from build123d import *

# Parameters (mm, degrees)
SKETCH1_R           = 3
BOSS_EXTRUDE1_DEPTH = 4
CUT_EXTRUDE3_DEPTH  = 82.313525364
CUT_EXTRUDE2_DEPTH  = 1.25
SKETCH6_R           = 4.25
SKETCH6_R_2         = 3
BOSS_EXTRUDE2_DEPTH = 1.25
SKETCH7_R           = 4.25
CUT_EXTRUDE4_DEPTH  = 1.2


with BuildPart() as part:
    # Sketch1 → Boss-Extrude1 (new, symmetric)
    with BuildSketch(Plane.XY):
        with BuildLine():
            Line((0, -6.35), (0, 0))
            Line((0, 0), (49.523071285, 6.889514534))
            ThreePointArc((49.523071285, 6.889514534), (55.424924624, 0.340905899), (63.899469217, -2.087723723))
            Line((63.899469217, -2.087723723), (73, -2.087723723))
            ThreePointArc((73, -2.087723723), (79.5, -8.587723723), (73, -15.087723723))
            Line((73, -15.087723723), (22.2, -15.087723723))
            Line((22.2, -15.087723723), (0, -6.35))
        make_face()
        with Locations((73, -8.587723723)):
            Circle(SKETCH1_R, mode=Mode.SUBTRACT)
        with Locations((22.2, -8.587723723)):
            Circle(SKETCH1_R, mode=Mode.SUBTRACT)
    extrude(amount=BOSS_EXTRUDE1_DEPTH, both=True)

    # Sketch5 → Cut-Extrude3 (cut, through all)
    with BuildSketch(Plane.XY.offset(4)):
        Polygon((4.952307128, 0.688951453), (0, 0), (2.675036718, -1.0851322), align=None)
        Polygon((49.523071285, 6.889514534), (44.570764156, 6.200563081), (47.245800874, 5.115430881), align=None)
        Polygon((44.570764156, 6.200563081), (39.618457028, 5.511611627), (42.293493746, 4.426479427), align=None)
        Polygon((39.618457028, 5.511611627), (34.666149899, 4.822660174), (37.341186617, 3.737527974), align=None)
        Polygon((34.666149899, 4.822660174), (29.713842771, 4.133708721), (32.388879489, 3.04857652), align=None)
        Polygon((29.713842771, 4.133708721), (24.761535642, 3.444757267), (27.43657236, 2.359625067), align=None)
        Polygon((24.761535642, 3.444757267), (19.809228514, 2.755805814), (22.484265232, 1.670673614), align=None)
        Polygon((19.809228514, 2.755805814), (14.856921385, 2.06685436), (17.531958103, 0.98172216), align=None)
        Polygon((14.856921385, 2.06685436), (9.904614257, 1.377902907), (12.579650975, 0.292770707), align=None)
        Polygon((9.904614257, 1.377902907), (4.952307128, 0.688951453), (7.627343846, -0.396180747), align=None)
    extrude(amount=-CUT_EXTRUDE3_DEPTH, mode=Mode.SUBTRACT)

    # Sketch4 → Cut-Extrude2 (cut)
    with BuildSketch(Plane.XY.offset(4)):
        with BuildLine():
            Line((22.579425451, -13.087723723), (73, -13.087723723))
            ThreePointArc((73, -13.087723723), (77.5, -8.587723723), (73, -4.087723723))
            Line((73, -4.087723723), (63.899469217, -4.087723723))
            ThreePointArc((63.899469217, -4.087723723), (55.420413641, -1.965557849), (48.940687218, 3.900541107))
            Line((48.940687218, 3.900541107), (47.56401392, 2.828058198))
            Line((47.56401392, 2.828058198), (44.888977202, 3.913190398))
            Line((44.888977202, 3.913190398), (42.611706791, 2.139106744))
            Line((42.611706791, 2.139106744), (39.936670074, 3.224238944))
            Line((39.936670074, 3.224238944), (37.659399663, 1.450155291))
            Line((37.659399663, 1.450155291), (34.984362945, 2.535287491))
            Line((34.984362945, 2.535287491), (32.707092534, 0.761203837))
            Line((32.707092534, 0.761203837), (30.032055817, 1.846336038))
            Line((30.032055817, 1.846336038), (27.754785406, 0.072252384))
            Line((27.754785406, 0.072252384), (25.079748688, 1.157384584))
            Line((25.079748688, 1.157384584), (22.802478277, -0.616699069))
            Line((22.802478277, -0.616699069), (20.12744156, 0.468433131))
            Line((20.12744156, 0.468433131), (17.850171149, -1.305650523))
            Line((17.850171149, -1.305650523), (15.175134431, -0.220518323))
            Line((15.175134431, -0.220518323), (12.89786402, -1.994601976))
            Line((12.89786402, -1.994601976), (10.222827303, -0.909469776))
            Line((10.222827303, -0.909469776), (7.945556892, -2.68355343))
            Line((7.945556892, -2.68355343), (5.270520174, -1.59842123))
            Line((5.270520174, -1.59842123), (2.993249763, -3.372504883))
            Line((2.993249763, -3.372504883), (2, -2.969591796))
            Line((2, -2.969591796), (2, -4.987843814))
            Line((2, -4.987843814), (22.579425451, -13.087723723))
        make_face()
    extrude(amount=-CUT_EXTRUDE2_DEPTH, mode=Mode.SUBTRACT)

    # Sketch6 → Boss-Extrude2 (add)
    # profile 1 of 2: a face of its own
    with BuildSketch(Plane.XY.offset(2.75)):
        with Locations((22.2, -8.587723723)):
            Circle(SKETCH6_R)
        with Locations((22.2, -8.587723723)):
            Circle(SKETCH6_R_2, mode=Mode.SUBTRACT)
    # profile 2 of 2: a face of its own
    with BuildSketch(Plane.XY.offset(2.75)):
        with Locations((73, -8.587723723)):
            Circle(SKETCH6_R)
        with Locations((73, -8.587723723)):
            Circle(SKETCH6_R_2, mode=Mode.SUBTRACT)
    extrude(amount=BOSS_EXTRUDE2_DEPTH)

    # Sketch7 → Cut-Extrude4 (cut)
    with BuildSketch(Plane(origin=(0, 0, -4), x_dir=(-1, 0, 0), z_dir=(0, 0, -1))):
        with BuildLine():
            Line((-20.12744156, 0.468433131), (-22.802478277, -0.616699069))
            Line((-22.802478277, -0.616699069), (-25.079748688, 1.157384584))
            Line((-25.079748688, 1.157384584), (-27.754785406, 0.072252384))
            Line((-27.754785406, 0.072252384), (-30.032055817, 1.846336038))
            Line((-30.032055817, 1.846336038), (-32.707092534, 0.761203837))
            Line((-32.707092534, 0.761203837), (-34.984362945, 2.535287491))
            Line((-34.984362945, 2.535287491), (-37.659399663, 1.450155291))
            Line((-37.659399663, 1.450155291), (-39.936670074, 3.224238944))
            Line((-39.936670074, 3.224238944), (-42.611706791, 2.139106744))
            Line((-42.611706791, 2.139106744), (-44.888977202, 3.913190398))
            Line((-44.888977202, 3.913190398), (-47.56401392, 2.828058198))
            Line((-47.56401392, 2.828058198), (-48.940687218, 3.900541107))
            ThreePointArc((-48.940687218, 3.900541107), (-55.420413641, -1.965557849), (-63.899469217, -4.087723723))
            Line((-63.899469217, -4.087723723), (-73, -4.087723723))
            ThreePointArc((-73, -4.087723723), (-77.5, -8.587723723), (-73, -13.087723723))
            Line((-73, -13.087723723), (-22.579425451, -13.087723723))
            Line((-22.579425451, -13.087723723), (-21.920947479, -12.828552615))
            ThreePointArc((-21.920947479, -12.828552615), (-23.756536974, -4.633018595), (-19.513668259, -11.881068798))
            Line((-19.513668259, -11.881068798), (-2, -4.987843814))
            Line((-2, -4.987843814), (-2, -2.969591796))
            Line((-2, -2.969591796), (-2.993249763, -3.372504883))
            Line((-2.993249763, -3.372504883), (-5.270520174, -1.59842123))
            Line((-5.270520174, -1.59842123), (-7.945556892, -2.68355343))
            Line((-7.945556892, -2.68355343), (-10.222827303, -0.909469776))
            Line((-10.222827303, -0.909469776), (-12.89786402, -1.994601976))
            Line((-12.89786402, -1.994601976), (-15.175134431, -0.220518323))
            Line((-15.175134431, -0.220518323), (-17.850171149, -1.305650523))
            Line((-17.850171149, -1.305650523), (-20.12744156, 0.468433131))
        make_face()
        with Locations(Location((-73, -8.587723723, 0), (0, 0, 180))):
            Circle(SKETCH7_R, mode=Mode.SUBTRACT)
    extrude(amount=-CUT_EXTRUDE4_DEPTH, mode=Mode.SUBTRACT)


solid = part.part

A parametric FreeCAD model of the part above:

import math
import FreeCAD as App
import Part
import Sketcher

V = App.Vector
Q = App.Units.Quantity


def add_polygon(sketch, points):
    """Adds a closed chain of lines whose ends are joined by coincident constraints."""
    first, n = sketch.GeometryCount, len(points)
    for a, b in zip(points, points[1:] + points[:1]):
        sketch.addGeometry(Part.LineSegment(App.Vector(*a, 0), App.Vector(*b, 0)), False)
    for i in range(n):
        sketch.addConstraint(Sketcher.Constraint("Coincident", first + i, 2, first + (i + 1) % n, 1))

doc = App.newDocument("Part")
params = doc.addObject("Spreadsheet::Sheet", "Params")
for row, (alias, value) in enumerate([
    ("sketch1_diameter", "6 mm"),
    ("sketch1_radius", "16 mm"),
    ("sketch1_radius2", "6.5 mm"),
    ("sketch1_length", "50 mm"),
    ("sketch1_width", "50.8 mm"),
    ("pad1_length", "8 mm"),
    ("sketch2_length", "5 mm"),
    ("sketch3_radius", "18 mm"),
    ("sketch3_radius2", "4.5 mm"),
    ("pocket2_length", "1.25 mm"),
    ("sketch4_diameter", "6 mm"),
    ("sketch4_diameter2", "8.5 mm"),
    ("pad2_length", "1.25 mm"),
    ("sketch5_radius", "18 mm"),
    ("sketch5_diameter", "8.5 mm"),
    ("sketch5_radius2", "4.5 mm"),
    ("pocket3_length", "1.2 mm"),
], start=1):
    params.set(f"A{row}", alias)
    params.set(f"B{row}", "=" + value)
    params.setAlias(f"B{row}", alias)

body = doc.addObject("PartDesign::Body", "Body")

# Sketch on XY plane
sketch1 = body.newObject("Sketcher::SketchObject", "Sketch")
sketch1.AttachmentSupport = (doc.getObject("XY_Plane"), [""])
sketch1.MapMode = "FlatFace"
sketch1.addGeometry([
    Part.LineSegment(V(0, 0, 0), V(0, -6.3, 0)),  # 0
    Part.LineSegment(V(0, -6.3, 0), V(22.2, -15.1, 0)),  # 1
    Part.LineSegment(V(22.2, -15.1, 0), V(73, -15.1, 0)),  # 2
    Part.ArcOfCircle(Part.Circle(V(73, -8.6, 0), V(0, 0, 1), 6.5), math.radians(-90), math.radians(90)),  # 3
    Part.LineSegment(V(73, -2.1, 0), V(63.9, -2.1, 0)),  # 4
    Part.ArcOfCircle(Part.Circle(V(63.9, 13.9, 0), V(0, 0, 1), 16), math.radians(-154), math.radians(-90)),  # 5
    Part.LineSegment(V(49.5, 6.9, 0), V(0, 0, 0)),  # 6
    Part.Circle(V(73, -8.6, 0), V(0, 0, 1), 3),  # 7
    Part.Circle(V(22.2, -8.6, 0), V(0, 0, 1), 3),  # 8
], False)
sketch1.addConstraint([
    Sketcher.Constraint("Coincident", 0, 2, 1, 1),
    Sketcher.Constraint("Coincident", 1, 2, 2, 1),
    Sketcher.Constraint("Tangent", 2, 2, 3, 1),
    Sketcher.Constraint("Tangent", 3, 2, 4, 1),
    Sketcher.Constraint("Tangent", 4, 2, 5, 2),
    Sketcher.Constraint("Coincident", 5, 1, 6, 1),
    Sketcher.Constraint("Coincident", 6, 2, 0, 1),
    Sketcher.Constraint("Vertical", 0),
    Sketcher.Constraint("Horizontal", 2),
    Sketcher.Constraint("Horizontal", 4),
    Sketcher.Constraint("Coincident", 6, 2, -1, 1),
    Sketcher.Constraint("Coincident", 7, 3, 3, 3),
    Sketcher.Constraint("Equal", 7, 8),
    Sketcher.Constraint("Horizontal", 7, 3, 8, 3),
    Sketcher.Constraint("Vertical", 8, 3, 1, 2),
    Sketcher.Constraint("Diameter", 7, Q("6 mm")),
    Sketcher.Constraint("Radius", 5, Q("16 mm")),
    Sketcher.Constraint("Radius", 3, Q("6.5 mm")),
    Sketcher.Constraint("Distance", 6, Q("50 mm")),
    Sketcher.Constraint("DistanceX", 2, 1, 2, 2, Q("50.8 mm")),
    Sketcher.Constraint("DistanceX", -1, 1, 3, 3, Q("73 mm")),
    Sketcher.Constraint("DistanceY", 0, 2, 0, 1, Q("6.35 mm")),
    Sketcher.Constraint("Angle", 6, Q("-172.08 deg")),
    Sketcher.Constraint("DistanceX", 4, 2, 4, 1, Q("9.100531 mm")),
])
sketch1.setExpression("Constraints[15]", "Params.sketch1_diameter")
sketch1.setExpression("Constraints[16]", "Params.sketch1_radius")
sketch1.setExpression("Constraints[17]", "Params.sketch1_radius2")
sketch1.setExpression("Constraints[18]", "Params.sketch1_length")
sketch1.setExpression("Constraints[19]", "Params.sketch1_width")
pad1 = body.newObject("PartDesign::Pad", "Pad")
pad1.Profile = sketch1
pad1.setExpression("Length", "Params.pad1_length")
pad1.Midplane = True

# Sketch on XY plane
sketch2 = body.newObject("Sketcher::SketchObject", "Sketch001")
sketch2.AttachmentSupport = (doc.getObject("XY_Plane"), [""])
sketch2.MapMode = "FlatFace"
sketch2.AttachmentOffset = App.Placement(V(0, 0, 4), App.Rotation())
add_polygon(sketch2, [(5, 0.7), (0, 0), (2.7, -1.1)])  # lines 0-2
add_polygon(sketch2, [(49.5, 6.9), (44.6, 6.2), (47.2, 5.1)])  # lines 3-5
add_polygon(sketch2, [(44.6, 6.2), (39.6, 5.5), (42.3, 4.4)])  # lines 6-8
add_polygon(sketch2, [(39.6, 5.5), (34.7, 4.8), (37.3, 3.7)])  # lines 9-11
add_polygon(sketch2, [(34.7, 4.8), (29.7, 4.1), (32.4, 3)])  # lines 12-14
add_polygon(sketch2, [(29.7, 4.1), (24.8, 3.4), (27.4, 2.4)])  # lines 15-17
add_polygon(sketch2, [(24.8, 3.4), (19.8, 2.8), (22.5, 1.7)])  # lines 18-20
add_polygon(sketch2, [(19.8, 2.8), (14.9, 2.1), (17.5, 1)])  # lines 21-23
add_polygon(sketch2, [(14.9, 2.1), (9.9, 1.4), (12.6, 0.3)])  # lines 24-26
add_polygon(sketch2, [(9.9, 1.4), (5, 0.7), (7.6, -0.4)])  # lines 27-29
sketch2.addConstraint([
    Sketcher.Constraint("Coincident", 0, 2, -1, 1),
    Sketcher.Constraint("Coincident", 8, 2, 3, 2),
    Sketcher.Constraint("Coincident", 11, 2, 6, 2),
    Sketcher.Constraint("Coincident", 14, 2, 9, 2),
    Sketcher.Constraint("Coincident", 17, 2, 12, 2),
    Sketcher.Constraint("Coincident", 20, 2, 15, 2),
    Sketcher.Constraint("Coincident", 23, 2, 18, 2),
    Sketcher.Constraint("Coincident", 26, 2, 21, 2),
    Sketcher.Constraint("Coincident", 27, 2, 2, 2),
    Sketcher.Constraint("Coincident", 29, 2, 24, 2),
    Sketcher.Constraint("Parallel", 0, 3),
    Sketcher.Constraint("Parallel", 1, 4),
    Sketcher.Constraint("Parallel", 2, 5),
    Sketcher.Constraint("Parallel", 3, 6),
    Sketcher.Constraint("Parallel", 4, 7),
    Sketcher.Constraint("Parallel", 5, 8),
    Sketcher.Constraint("Parallel", 6, 9),
    Sketcher.Constraint("Parallel", 7, 10),
    Sketcher.Constraint("Parallel", 8, 11),
    Sketcher.Constraint("Parallel", 9, 12),
    Sketcher.Constraint("Parallel", 10, 13),
    Sketcher.Constraint("Parallel", 11, 14),
    Sketcher.Constraint("Parallel", 12, 15),
    Sketcher.Constraint("Parallel", 13, 16),
    Sketcher.Constraint("Parallel", 14, 17),
    Sketcher.Constraint("Parallel", 15, 18),
    Sketcher.Constraint("Parallel", 16, 19),
    Sketcher.Constraint("Parallel", 17, 20),
    Sketcher.Constraint("Parallel", 18, 21),
    Sketcher.Constraint("Parallel", 19, 22),
    Sketcher.Constraint("Parallel", 20, 23),
    Sketcher.Constraint("Parallel", 21, 24),
    Sketcher.Constraint("Parallel", 22, 25),
    Sketcher.Constraint("Parallel", 23, 26),
    Sketcher.Constraint("Parallel", 24, 27),
    Sketcher.Constraint("Parallel", 25, 28),
    Sketcher.Constraint("Parallel", 26, 29),
    Sketcher.Constraint("Equal", 1, 2),
    Sketcher.Constraint("Equal", 0, 3),
    Sketcher.Constraint("Equal", 3, 6),
    Sketcher.Constraint("Equal", 6, 9),
    Sketcher.Constraint("Equal", 9, 12),
    Sketcher.Constraint("Equal", 12, 15),
    Sketcher.Constraint("Equal", 15, 18),
    Sketcher.Constraint("Equal", 18, 21),
    Sketcher.Constraint("Equal", 21, 24),
    Sketcher.Constraint("Equal", 24, 27),
    Sketcher.Constraint("Distance", 0, Q("5 mm")),
    Sketcher.Constraint("Angle", 0, Q("-172.08 deg")),
    Sketcher.Constraint("Angle", 1, Q("-22.08 deg")),
])
sketch2.setExpression("Constraints[77]", "Params.sketch2_length")
pocket1 = body.newObject("PartDesign::Pocket", "Pocket")
pocket1.Profile = sketch2
pocket1.Type = "ThroughAll"

# Sketch on XY plane
sketch3 = body.newObject("Sketcher::SketchObject", "Sketch002")
sketch3.AttachmentSupport = (doc.getObject("XY_Plane"), [""])
sketch3.MapMode = "FlatFace"
sketch3.AttachmentOffset = App.Placement(V(0, 0, 4), App.Rotation())
sketch3.addGeometry([
    Part.LineSegment(V(22.6, -13.1, 0), V(73, -13.1, 0)),  # 0
    Part.ArcOfCircle(Part.Circle(V(73, -8.6, 0), V(0, 0, 1), 4.5), math.radians(-90), math.radians(90)),  # 1
    Part.LineSegment(V(73, -4.1, 0), V(63.9, -4.1, 0)),  # 2
    Part.ArcOfCircle(Part.Circle(V(63.9, 13.9, 0), V(0, 0, 1), 18), math.radians(-146), math.radians(-90)),  # 3
    Part.LineSegment(V(48.9, 3.9, 0), V(47.6, 2.8, 0)),  # 4
    Part.LineSegment(V(47.6, 2.8, 0), V(44.9, 3.9, 0)),  # 5
    Part.LineSegment(V(44.9, 3.9, 0), V(42.6, 2.1, 0)),  # 6
    Part.LineSegment(V(42.6, 2.1, 0), V(39.9, 3.2, 0)),  # 7
    Part.LineSegment(V(39.9, 3.2, 0), V(37.7, 1.5, 0)),  # 8
    Part.LineSegment(V(37.7, 1.5, 0), V(35, 2.5, 0)),  # 9
    Part.LineSegment(V(35, 2.5, 0), V(32.7, 0.8, 0)),  # 10
    Part.LineSegment(V(32.7, 0.8, 0), V(30, 1.8, 0)),  # 11
    Part.LineSegment(V(30, 1.8, 0), V(27.8, 0.1, 0)),  # 12
    Part.LineSegment(V(27.8, 0.1, 0), V(25.1, 1.2, 0)),  # 13
    Part.LineSegment(V(25.1, 1.2, 0), V(22.8, -0.6, 0)),  # 14
    Part.LineSegment(V(22.8, -0.6, 0), V(20.1, 0.5, 0)),  # 15
    Part.LineSegment(V(20.1, 0.5, 0), V(17.9, -1.3, 0)),  # 16
    Part.LineSegment(V(17.9, -1.3, 0), V(15.2, -0.2, 0)),  # 17
    Part.LineSegment(V(15.2, -0.2, 0), V(12.9, -2, 0)),  # 18
    Part.LineSegment(V(12.9, -2, 0), V(10.2, -0.9, 0)),  # 19
    Part.LineSegment(V(10.2, -0.9, 0), V(7.9, -2.7, 0)),  # 20
    Part.LineSegment(V(7.9, -2.7, 0), V(5.3, -1.6, 0)),  # 21
    Part.LineSegment(V(5.3, -1.6, 0), V(3, -3.4, 0)),  # 22
    Part.LineSegment(V(3, -3.4, 0), V(2, -3, 0)),  # 23
    Part.LineSegment(V(2, -3, 0), V(2, -5, 0)),  # 24
    Part.LineSegment(V(2, -5, 0), V(22.6, -13.1, 0)),  # 25
], False)
sketch3.addConstraint([
    Sketcher.Constraint("Tangent", 0, 2, 1, 1),
    Sketcher.Constraint("Tangent", 1, 2, 2, 1),
    Sketcher.Constraint("Tangent", 2, 2, 3, 2),
    Sketcher.Constraint("Coincident", 3, 1, 4, 1),
    Sketcher.Constraint("Coincident", 4, 2, 5, 1),
    Sketcher.Constraint("Coincident", 5, 2, 6, 1),
    Sketcher.Constraint("Coincident", 6, 2, 7, 1),
    Sketcher.Constraint("Coincident", 7, 2, 8, 1),
    Sketcher.Constraint("Coincident", 8, 2, 9, 1),
    Sketcher.Constraint("Coincident", 9, 2, 10, 1),
    Sketcher.Constraint("Coincident", 10, 2, 11, 1),
    Sketcher.Constraint("Coincident", 11, 2, 12, 1),
    Sketcher.Constraint("Coincident", 12, 2, 13, 1),
    Sketcher.Constraint("Coincident", 13, 2, 14, 1),
    Sketcher.Constraint("Coincident", 14, 2, 15, 1),
    Sketcher.Constraint("Coincident", 15, 2, 16, 1),
    Sketcher.Constraint("Coincident", 16, 2, 17, 1),
    Sketcher.Constraint("Coincident", 17, 2, 18, 1),
    Sketcher.Constraint("Coincident", 18, 2, 19, 1),
    Sketcher.Constraint("Coincident", 19, 2, 20, 1),
    Sketcher.Constraint("Coincident", 20, 2, 21, 1),
    Sketcher.Constraint("Coincident", 21, 2, 22, 1),
    Sketcher.Constraint("Coincident", 22, 2, 23, 1),
    Sketcher.Constraint("Coincident", 23, 2, 24, 1),
    Sketcher.Constraint("Coincident", 24, 2, 25, 1),
    Sketcher.Constraint("Coincident", 25, 2, 0, 1),
    Sketcher.Constraint("Horizontal", 0),
    Sketcher.Constraint("Horizontal", 2),
    Sketcher.Constraint("Vertical", 24),
    Sketcher.Constraint("Parallel", 4, 6),
    Sketcher.Constraint("Parallel", 5, 7),
    Sketcher.Constraint("Parallel", 6, 8),
    Sketcher.Constraint("Parallel", 7, 9),
    Sketcher.Constraint("Parallel", 8, 10),
    Sketcher.Constraint("Parallel", 9, 11),
    Sketcher.Constraint("Parallel", 10, 12),
    Sketcher.Constraint("Parallel", 11, 13),
    Sketcher.Constraint("Parallel", 12, 14),
    Sketcher.Constraint("Parallel", 13, 15),
    Sketcher.Constraint("Parallel", 14, 16),
    Sketcher.Constraint("Parallel", 15, 17),
    Sketcher.Constraint("Parallel", 16, 18),
    Sketcher.Constraint("Parallel", 17, 19),
    Sketcher.Constraint("Parallel", 18, 20),
    Sketcher.Constraint("Parallel", 19, 21),
    Sketcher.Constraint("Parallel", 20, 22),
    Sketcher.Constraint("Parallel", 21, 23),
    Sketcher.Constraint("Equal", 5, 6),
    Sketcher.Constraint("Equal", 6, 7),
    Sketcher.Constraint("Equal", 7, 8),
    Sketcher.Constraint("Equal", 8, 9),
    Sketcher.Constraint("Equal", 9, 10),
    Sketcher.Constraint("Equal", 10, 11),
    Sketcher.Constraint("Equal", 11, 12),
    Sketcher.Constraint("Equal", 12, 13),
    Sketcher.Constraint("Equal", 13, 14),
    Sketcher.Constraint("Equal", 14, 15),
    Sketcher.Constraint("Equal", 15, 16),
    Sketcher.Constraint("Equal", 16, 17),
    Sketcher.Constraint("Equal", 17, 18),
    Sketcher.Constraint("Equal", 18, 19),
    Sketcher.Constraint("Equal", 19, 20),
    Sketcher.Constraint("Equal", 20, 21),
    Sketcher.Constraint("Equal", 21, 22),
    Sketcher.Constraint("Radius", 3, Q("18 mm")),
    Sketcher.Constraint("Radius", 1, Q("4.5 mm")),
    Sketcher.Constraint("DistanceX", -1, 1, 1, 3, Q("73 mm")),
    Sketcher.Constraint("DistanceX", -1, 1, 23, 2, Q("2 mm")),
    Sketcher.Constraint("Angle", 4, Q("-142.08 deg")),
    Sketcher.Constraint("Angle", 5, Q("157.92 deg")),
    Sketcher.Constraint("DistanceX", 2, 2, 2, 1, Q("9.100531 mm")),
    Sketcher.Constraint("DistanceX", -1, 1, 8, 2, Q("37.6594 mm")),
    Sketcher.Constraint("DistanceY", 14, 2, -1, 1, Q("0.616699 mm")),
    Sketcher.Constraint("DistanceY", 18, 2, -1, 1, Q("1.994602 mm")),
    Sketcher.Constraint("Distance", 4, Q("1.745121 mm")),
    Sketcher.Constraint("DistanceX", 0, 1, 0, 2, Q("50.420575 mm")),
    Sketcher.Constraint("DistanceY", 24, 2, 24, 1, Q("2.018252 mm")),
])
sketch3.setExpression("Constraints[64]", "Params.sketch3_radius")
sketch3.setExpression("Constraints[65]", "Params.sketch3_radius2")
pocket2 = body.newObject("PartDesign::Pocket", "Pocket001")
pocket2.Profile = sketch3
pocket2.setExpression("Length", "Params.pocket2_length")

# Sketch on XY plane
sketch4 = body.newObject("Sketcher::SketchObject", "Sketch003")
sketch4.AttachmentSupport = (doc.getObject("XY_Plane"), [""])
sketch4.MapMode = "FlatFace"
sketch4.AttachmentOffset = App.Placement(V(0, 0, 2.75), App.Rotation())
sketch4.addGeometry([
    Part.Circle(V(22.2, -8.6, 0), V(0, 0, 1), 4.2),
    Part.Circle(V(22.2, -8.6, 0), V(0, 0, 1), 3),
    Part.Circle(V(73, -8.6, 0), V(0, 0, 1), 4.2),
    Part.Circle(V(73, -8.6, 0), V(0, 0, 1), 3),
], False)
sketch4.addConstraint([
    Sketcher.Constraint("Coincident", 1, 3, 0, 3),
    Sketcher.Constraint("Coincident", 3, 3, 2, 3),
    Sketcher.Constraint("Equal", 0, 2),
    Sketcher.Constraint("Equal", 1, 3),
    Sketcher.Constraint("Horizontal", 1, 3, 2, 3),
    Sketcher.Constraint("Diameter", 1, Q("6 mm")),
    Sketcher.Constraint("Diameter", 0, Q("8.5 mm")),
    Sketcher.Constraint("DistanceX", -1, 1, 2, 3, Q("73 mm")),
    Sketcher.Constraint("DistanceX", -1, 1, 0, 3, Q("22.2 mm")),
    Sketcher.Constraint("DistanceY", 0, 3, -1, 1, Q("8.587724 mm")),
])
sketch4.setExpression("Constraints[5]", "Params.sketch4_diameter")
sketch4.setExpression("Constraints[6]", "Params.sketch4_diameter2")
pad2 = body.newObject("PartDesign::Pad", "Pad001")
pad2.Profile = sketch4
pad2.setExpression("Length", "Params.pad2_length")

# Sketch on XY plane
sketch5 = body.newObject("Sketcher::SketchObject", "Sketch004")
sketch5.AttachmentSupport = (doc.getObject("XY_Plane"), [""])
sketch5.MapMode = "FlatFace"
sketch5.AttachmentOffset = App.Placement(V(0, 0, -4), App.Rotation())
sketch5.addGeometry([
    Part.LineSegment(V(20.1, 0.5, 0), V(22.8, -0.6, 0)),  # 0
    Part.LineSegment(V(22.8, -0.6, 0), V(25.1, 1.2, 0)),  # 1
    Part.LineSegment(V(25.1, 1.2, 0), V(27.8, 0.1, 0)),  # 2
    Part.LineSegment(V(27.8, 0.1, 0), V(30, 1.8, 0)),  # 3
    Part.LineSegment(V(30, 1.8, 0), V(32.7, 0.8, 0)),  # 4
    Part.LineSegment(V(32.7, 0.8, 0), V(35, 2.5, 0)),  # 5
    Part.LineSegment(V(35, 2.5, 0), V(37.7, 1.5, 0)),  # 6
    Part.LineSegment(V(37.7, 1.5, 0), V(39.9, 3.2, 0)),  # 7
    Part.LineSegment(V(39.9, 3.2, 0), V(42.6, 2.1, 0)),  # 8
    Part.LineSegment(V(42.6, 2.1, 0), V(44.9, 3.9, 0)),  # 9
    Part.LineSegment(V(44.9, 3.9, 0), V(47.6, 2.8, 0)),  # 10
    Part.LineSegment(V(47.6, 2.8, 0), V(48.9, 3.9, 0)),  # 11
    Part.ArcOfCircle(Part.Circle(V(63.9, 13.9, 0), V(0, 0, 1), 18), math.radians(-146), math.radians(-90)),  # 12
    Part.LineSegment(V(63.9, -4.1, 0), V(73, -4.1, 0)),  # 13
    Part.ArcOfCircle(Part.Circle(V(73, -8.6, 0), V(0, 0, 1), 4.5), math.radians(-90), math.radians(90)),  # 14
    Part.LineSegment(V(73, -13.1, 0), V(22.6, -13.1, 0)),  # 15
    Part.LineSegment(V(22.6, -13.1, 0), V(21.9, -12.8, 0)),  # 16
    Part.ArcOfCircle(Part.Circle(V(22.2, -8.6, 0), V(0, 0, 1), 4.2), math.radians(-94), math.radians(231)),  # 17
    Part.LineSegment(V(19.5, -11.9, 0), V(2, -5, 0)),  # 18
    Part.LineSegment(V(2, -5, 0), V(2, -3, 0)),  # 19
    Part.LineSegment(V(2, -3, 0), V(3, -3.4, 0)),  # 20
    Part.LineSegment(V(3, -3.4, 0), V(5.3, -1.6, 0)),  # 21
    Part.LineSegment(V(5.3, -1.6, 0), V(7.9, -2.7, 0)),  # 22
    Part.LineSegment(V(7.9, -2.7, 0), V(10.2, -0.9, 0)),  # 23
    Part.LineSegment(V(10.2, -0.9, 0), V(12.9, -2, 0)),  # 24
    Part.LineSegment(V(12.9, -2, 0), V(15.2, -0.2, 0)),  # 25
    Part.LineSegment(V(15.2, -0.2, 0), V(17.9, -1.3, 0)),  # 26
    Part.LineSegment(V(17.9, -1.3, 0), V(20.1, 0.5, 0)),  # 27
    Part.Circle(V(73, -8.6, 0), V(0, 0, 1), 4.2),  # 28
], False)
sketch5.addConstraint([
    Sketcher.Constraint("Coincident", 0, 2, 1, 1),
    Sketcher.Constraint("Coincident", 1, 2, 2, 1),
    Sketcher.Constraint("Coincident", 2, 2, 3, 1),
    Sketcher.Constraint("Coincident", 3, 2, 4, 1),
    Sketcher.Constraint("Coincident", 4, 2, 5, 1),
    Sketcher.Constraint("Coincident", 5, 2, 6, 1),
    Sketcher.Constraint("Coincident", 6, 2, 7, 1),
    Sketcher.Constraint("Coincident", 7, 2, 8, 1),
    Sketcher.Constraint("Coincident", 8, 2, 9, 1),
    Sketcher.Constraint("Coincident", 9, 2, 10, 1),
    Sketcher.Constraint("Coincident", 10, 2, 11, 1),
    Sketcher.Constraint("Coincident", 11, 2, 12, 1),
    Sketcher.Constraint("Tangent", 12, 2, 13, 1),
    Sketcher.Constraint("Tangent", 13, 2, 14, 2),
    Sketcher.Constraint("Tangent", 14, 1, 15, 1),
    Sketcher.Constraint("Coincident", 15, 2, 16, 1),
    Sketcher.Constraint("Coincident", 16, 2, 17, 1),
    Sketcher.Constraint("Coincident", 17, 2, 18, 1),
    Sketcher.Constraint("Coincident", 18, 2, 19, 1),
    Sketcher.Constraint("Coincident", 19, 2, 20, 1),
    Sketcher.Constraint("Coincident", 20, 2, 21, 1),
    Sketcher.Constraint("Coincident", 21, 2, 22, 1),
    Sketcher.Constraint("Coincident", 22, 2, 23, 1),
    Sketcher.Constraint("Coincident", 23, 2, 24, 1),
    Sketcher.Constraint("Coincident", 24, 2, 25, 1),
    Sketcher.Constraint("Coincident", 25, 2, 26, 1),
    Sketcher.Constraint("Coincident", 26, 2, 27, 1),
    Sketcher.Constraint("Coincident", 27, 2, 0, 1),
    Sketcher.Constraint("Horizontal", 13),
    Sketcher.Constraint("Horizontal", 15),
    Sketcher.Constraint("Vertical", 19),
    Sketcher.Constraint("Coincident", 28, 3, 14, 3),
    Sketcher.Constraint("Equal", 17, 28),
    Sketcher.Constraint("Parallel", 0, 2),
    Sketcher.Constraint("Parallel", 1, 3),
    Sketcher.Constraint("Parallel", 2, 4),
    Sketcher.Constraint("Parallel", 3, 5),
    Sketcher.Constraint("Parallel", 4, 6),
    Sketcher.Constraint("Parallel", 5, 7),
    Sketcher.Constraint("Parallel", 6, 8),
    Sketcher.Constraint("Parallel", 7, 9),
    Sketcher.Constraint("Parallel", 8, 10),
    Sketcher.Constraint("Parallel", 9, 11),
    Sketcher.Constraint("Parallel", 16, 18),
    Sketcher.Constraint("Parallel", 10, 20),
    Sketcher.Constraint("Parallel", 11, 21),
    Sketcher.Constraint("Parallel", 20, 22),
    Sketcher.Constraint("Parallel", 21, 23),
    Sketcher.Constraint("Parallel", 22, 24),
    Sketcher.Constraint("Parallel", 23, 25),
    Sketcher.Constraint("Parallel", 24, 26),
    Sketcher.Constraint("Parallel", 25, 27),
    Sketcher.Constraint("Horizontal", 14, 3, 17, 3),
    Sketcher.Constraint("Equal", 0, 1),
    Sketcher.Constraint("Equal", 1, 2),
    Sketcher.Constraint("Equal", 2, 3),
    Sketcher.Constraint("Equal", 3, 4),
    Sketcher.Constraint("Equal", 4, 5),
    Sketcher.Constraint("Equal", 5, 6),
    Sketcher.Constraint("Equal", 6, 7),
    Sketcher.Constraint("Equal", 7, 8),
    Sketcher.Constraint("Equal", 8, 9),
    Sketcher.Constraint("Equal", 9, 10),
    Sketcher.Constraint("Equal", 10, 21),
    Sketcher.Constraint("Equal", 21, 22),
    Sketcher.Constraint("Equal", 22, 23),
    Sketcher.Constraint("Equal", 23, 24),
    Sketcher.Constraint("Equal", 24, 25),
    Sketcher.Constraint("Equal", 25, 26),
    Sketcher.Constraint("Equal", 26, 27),
    Sketcher.Constraint("Radius", 12, Q("18 mm")),
    Sketcher.Constraint("Diameter", 28, Q("8.5 mm")),
    Sketcher.Constraint("Radius", 14, Q("4.5 mm")),
    Sketcher.Constraint("DistanceX", -1, 1, 14, 3, Q("73 mm")),
    Sketcher.Constraint("DistanceX", -1, 1, 18, 2, Q("2 mm")),
    Sketcher.Constraint("DistanceX", -1, 1, 17, 3, Q("22.2 mm")),
    Sketcher.Constraint("Angle", 0, Q("-22.08 deg")),
    Sketcher.Constraint("Angle", 1, Q("37.92 deg")),
    Sketcher.Constraint("Distance", 18, Q("18.821401 mm")),
    Sketcher.Constraint("DistanceX", 13, 1, 13, 2, Q("9.100531 mm")),
    Sketcher.Constraint("DistanceY", 0, 2, -1, 1, Q("0.616699 mm")),
    Sketcher.Constraint("DistanceX", -1, 1, 6, 2, Q("37.6594 mm")),
    Sketcher.Constraint("DistanceY", 24, 2, -1, 1, Q("1.994602 mm")),
    Sketcher.Constraint("DistanceX", 16, 2, 1, 2, Q("3.158801 mm")),
    Sketcher.Constraint("Distance", 11, Q("1.745121 mm")),
    Sketcher.Constraint("DistanceX", 15, 2, 15, 1, Q("50.420575 mm")),
])
sketch5.setExpression("Constraints[70]", "Params.sketch5_radius")
sketch5.setExpression("Constraints[71]", "Params.sketch5_diameter")
sketch5.setExpression("Constraints[72]", "Params.sketch5_radius2")
pocket3 = body.newObject("PartDesign::Pocket", "Pocket002")
pocket3.Profile = sketch5
pocket3.setExpression("Length", "Params.pocket3_length")
pocket3.Reversed = True

doc.recompute()
